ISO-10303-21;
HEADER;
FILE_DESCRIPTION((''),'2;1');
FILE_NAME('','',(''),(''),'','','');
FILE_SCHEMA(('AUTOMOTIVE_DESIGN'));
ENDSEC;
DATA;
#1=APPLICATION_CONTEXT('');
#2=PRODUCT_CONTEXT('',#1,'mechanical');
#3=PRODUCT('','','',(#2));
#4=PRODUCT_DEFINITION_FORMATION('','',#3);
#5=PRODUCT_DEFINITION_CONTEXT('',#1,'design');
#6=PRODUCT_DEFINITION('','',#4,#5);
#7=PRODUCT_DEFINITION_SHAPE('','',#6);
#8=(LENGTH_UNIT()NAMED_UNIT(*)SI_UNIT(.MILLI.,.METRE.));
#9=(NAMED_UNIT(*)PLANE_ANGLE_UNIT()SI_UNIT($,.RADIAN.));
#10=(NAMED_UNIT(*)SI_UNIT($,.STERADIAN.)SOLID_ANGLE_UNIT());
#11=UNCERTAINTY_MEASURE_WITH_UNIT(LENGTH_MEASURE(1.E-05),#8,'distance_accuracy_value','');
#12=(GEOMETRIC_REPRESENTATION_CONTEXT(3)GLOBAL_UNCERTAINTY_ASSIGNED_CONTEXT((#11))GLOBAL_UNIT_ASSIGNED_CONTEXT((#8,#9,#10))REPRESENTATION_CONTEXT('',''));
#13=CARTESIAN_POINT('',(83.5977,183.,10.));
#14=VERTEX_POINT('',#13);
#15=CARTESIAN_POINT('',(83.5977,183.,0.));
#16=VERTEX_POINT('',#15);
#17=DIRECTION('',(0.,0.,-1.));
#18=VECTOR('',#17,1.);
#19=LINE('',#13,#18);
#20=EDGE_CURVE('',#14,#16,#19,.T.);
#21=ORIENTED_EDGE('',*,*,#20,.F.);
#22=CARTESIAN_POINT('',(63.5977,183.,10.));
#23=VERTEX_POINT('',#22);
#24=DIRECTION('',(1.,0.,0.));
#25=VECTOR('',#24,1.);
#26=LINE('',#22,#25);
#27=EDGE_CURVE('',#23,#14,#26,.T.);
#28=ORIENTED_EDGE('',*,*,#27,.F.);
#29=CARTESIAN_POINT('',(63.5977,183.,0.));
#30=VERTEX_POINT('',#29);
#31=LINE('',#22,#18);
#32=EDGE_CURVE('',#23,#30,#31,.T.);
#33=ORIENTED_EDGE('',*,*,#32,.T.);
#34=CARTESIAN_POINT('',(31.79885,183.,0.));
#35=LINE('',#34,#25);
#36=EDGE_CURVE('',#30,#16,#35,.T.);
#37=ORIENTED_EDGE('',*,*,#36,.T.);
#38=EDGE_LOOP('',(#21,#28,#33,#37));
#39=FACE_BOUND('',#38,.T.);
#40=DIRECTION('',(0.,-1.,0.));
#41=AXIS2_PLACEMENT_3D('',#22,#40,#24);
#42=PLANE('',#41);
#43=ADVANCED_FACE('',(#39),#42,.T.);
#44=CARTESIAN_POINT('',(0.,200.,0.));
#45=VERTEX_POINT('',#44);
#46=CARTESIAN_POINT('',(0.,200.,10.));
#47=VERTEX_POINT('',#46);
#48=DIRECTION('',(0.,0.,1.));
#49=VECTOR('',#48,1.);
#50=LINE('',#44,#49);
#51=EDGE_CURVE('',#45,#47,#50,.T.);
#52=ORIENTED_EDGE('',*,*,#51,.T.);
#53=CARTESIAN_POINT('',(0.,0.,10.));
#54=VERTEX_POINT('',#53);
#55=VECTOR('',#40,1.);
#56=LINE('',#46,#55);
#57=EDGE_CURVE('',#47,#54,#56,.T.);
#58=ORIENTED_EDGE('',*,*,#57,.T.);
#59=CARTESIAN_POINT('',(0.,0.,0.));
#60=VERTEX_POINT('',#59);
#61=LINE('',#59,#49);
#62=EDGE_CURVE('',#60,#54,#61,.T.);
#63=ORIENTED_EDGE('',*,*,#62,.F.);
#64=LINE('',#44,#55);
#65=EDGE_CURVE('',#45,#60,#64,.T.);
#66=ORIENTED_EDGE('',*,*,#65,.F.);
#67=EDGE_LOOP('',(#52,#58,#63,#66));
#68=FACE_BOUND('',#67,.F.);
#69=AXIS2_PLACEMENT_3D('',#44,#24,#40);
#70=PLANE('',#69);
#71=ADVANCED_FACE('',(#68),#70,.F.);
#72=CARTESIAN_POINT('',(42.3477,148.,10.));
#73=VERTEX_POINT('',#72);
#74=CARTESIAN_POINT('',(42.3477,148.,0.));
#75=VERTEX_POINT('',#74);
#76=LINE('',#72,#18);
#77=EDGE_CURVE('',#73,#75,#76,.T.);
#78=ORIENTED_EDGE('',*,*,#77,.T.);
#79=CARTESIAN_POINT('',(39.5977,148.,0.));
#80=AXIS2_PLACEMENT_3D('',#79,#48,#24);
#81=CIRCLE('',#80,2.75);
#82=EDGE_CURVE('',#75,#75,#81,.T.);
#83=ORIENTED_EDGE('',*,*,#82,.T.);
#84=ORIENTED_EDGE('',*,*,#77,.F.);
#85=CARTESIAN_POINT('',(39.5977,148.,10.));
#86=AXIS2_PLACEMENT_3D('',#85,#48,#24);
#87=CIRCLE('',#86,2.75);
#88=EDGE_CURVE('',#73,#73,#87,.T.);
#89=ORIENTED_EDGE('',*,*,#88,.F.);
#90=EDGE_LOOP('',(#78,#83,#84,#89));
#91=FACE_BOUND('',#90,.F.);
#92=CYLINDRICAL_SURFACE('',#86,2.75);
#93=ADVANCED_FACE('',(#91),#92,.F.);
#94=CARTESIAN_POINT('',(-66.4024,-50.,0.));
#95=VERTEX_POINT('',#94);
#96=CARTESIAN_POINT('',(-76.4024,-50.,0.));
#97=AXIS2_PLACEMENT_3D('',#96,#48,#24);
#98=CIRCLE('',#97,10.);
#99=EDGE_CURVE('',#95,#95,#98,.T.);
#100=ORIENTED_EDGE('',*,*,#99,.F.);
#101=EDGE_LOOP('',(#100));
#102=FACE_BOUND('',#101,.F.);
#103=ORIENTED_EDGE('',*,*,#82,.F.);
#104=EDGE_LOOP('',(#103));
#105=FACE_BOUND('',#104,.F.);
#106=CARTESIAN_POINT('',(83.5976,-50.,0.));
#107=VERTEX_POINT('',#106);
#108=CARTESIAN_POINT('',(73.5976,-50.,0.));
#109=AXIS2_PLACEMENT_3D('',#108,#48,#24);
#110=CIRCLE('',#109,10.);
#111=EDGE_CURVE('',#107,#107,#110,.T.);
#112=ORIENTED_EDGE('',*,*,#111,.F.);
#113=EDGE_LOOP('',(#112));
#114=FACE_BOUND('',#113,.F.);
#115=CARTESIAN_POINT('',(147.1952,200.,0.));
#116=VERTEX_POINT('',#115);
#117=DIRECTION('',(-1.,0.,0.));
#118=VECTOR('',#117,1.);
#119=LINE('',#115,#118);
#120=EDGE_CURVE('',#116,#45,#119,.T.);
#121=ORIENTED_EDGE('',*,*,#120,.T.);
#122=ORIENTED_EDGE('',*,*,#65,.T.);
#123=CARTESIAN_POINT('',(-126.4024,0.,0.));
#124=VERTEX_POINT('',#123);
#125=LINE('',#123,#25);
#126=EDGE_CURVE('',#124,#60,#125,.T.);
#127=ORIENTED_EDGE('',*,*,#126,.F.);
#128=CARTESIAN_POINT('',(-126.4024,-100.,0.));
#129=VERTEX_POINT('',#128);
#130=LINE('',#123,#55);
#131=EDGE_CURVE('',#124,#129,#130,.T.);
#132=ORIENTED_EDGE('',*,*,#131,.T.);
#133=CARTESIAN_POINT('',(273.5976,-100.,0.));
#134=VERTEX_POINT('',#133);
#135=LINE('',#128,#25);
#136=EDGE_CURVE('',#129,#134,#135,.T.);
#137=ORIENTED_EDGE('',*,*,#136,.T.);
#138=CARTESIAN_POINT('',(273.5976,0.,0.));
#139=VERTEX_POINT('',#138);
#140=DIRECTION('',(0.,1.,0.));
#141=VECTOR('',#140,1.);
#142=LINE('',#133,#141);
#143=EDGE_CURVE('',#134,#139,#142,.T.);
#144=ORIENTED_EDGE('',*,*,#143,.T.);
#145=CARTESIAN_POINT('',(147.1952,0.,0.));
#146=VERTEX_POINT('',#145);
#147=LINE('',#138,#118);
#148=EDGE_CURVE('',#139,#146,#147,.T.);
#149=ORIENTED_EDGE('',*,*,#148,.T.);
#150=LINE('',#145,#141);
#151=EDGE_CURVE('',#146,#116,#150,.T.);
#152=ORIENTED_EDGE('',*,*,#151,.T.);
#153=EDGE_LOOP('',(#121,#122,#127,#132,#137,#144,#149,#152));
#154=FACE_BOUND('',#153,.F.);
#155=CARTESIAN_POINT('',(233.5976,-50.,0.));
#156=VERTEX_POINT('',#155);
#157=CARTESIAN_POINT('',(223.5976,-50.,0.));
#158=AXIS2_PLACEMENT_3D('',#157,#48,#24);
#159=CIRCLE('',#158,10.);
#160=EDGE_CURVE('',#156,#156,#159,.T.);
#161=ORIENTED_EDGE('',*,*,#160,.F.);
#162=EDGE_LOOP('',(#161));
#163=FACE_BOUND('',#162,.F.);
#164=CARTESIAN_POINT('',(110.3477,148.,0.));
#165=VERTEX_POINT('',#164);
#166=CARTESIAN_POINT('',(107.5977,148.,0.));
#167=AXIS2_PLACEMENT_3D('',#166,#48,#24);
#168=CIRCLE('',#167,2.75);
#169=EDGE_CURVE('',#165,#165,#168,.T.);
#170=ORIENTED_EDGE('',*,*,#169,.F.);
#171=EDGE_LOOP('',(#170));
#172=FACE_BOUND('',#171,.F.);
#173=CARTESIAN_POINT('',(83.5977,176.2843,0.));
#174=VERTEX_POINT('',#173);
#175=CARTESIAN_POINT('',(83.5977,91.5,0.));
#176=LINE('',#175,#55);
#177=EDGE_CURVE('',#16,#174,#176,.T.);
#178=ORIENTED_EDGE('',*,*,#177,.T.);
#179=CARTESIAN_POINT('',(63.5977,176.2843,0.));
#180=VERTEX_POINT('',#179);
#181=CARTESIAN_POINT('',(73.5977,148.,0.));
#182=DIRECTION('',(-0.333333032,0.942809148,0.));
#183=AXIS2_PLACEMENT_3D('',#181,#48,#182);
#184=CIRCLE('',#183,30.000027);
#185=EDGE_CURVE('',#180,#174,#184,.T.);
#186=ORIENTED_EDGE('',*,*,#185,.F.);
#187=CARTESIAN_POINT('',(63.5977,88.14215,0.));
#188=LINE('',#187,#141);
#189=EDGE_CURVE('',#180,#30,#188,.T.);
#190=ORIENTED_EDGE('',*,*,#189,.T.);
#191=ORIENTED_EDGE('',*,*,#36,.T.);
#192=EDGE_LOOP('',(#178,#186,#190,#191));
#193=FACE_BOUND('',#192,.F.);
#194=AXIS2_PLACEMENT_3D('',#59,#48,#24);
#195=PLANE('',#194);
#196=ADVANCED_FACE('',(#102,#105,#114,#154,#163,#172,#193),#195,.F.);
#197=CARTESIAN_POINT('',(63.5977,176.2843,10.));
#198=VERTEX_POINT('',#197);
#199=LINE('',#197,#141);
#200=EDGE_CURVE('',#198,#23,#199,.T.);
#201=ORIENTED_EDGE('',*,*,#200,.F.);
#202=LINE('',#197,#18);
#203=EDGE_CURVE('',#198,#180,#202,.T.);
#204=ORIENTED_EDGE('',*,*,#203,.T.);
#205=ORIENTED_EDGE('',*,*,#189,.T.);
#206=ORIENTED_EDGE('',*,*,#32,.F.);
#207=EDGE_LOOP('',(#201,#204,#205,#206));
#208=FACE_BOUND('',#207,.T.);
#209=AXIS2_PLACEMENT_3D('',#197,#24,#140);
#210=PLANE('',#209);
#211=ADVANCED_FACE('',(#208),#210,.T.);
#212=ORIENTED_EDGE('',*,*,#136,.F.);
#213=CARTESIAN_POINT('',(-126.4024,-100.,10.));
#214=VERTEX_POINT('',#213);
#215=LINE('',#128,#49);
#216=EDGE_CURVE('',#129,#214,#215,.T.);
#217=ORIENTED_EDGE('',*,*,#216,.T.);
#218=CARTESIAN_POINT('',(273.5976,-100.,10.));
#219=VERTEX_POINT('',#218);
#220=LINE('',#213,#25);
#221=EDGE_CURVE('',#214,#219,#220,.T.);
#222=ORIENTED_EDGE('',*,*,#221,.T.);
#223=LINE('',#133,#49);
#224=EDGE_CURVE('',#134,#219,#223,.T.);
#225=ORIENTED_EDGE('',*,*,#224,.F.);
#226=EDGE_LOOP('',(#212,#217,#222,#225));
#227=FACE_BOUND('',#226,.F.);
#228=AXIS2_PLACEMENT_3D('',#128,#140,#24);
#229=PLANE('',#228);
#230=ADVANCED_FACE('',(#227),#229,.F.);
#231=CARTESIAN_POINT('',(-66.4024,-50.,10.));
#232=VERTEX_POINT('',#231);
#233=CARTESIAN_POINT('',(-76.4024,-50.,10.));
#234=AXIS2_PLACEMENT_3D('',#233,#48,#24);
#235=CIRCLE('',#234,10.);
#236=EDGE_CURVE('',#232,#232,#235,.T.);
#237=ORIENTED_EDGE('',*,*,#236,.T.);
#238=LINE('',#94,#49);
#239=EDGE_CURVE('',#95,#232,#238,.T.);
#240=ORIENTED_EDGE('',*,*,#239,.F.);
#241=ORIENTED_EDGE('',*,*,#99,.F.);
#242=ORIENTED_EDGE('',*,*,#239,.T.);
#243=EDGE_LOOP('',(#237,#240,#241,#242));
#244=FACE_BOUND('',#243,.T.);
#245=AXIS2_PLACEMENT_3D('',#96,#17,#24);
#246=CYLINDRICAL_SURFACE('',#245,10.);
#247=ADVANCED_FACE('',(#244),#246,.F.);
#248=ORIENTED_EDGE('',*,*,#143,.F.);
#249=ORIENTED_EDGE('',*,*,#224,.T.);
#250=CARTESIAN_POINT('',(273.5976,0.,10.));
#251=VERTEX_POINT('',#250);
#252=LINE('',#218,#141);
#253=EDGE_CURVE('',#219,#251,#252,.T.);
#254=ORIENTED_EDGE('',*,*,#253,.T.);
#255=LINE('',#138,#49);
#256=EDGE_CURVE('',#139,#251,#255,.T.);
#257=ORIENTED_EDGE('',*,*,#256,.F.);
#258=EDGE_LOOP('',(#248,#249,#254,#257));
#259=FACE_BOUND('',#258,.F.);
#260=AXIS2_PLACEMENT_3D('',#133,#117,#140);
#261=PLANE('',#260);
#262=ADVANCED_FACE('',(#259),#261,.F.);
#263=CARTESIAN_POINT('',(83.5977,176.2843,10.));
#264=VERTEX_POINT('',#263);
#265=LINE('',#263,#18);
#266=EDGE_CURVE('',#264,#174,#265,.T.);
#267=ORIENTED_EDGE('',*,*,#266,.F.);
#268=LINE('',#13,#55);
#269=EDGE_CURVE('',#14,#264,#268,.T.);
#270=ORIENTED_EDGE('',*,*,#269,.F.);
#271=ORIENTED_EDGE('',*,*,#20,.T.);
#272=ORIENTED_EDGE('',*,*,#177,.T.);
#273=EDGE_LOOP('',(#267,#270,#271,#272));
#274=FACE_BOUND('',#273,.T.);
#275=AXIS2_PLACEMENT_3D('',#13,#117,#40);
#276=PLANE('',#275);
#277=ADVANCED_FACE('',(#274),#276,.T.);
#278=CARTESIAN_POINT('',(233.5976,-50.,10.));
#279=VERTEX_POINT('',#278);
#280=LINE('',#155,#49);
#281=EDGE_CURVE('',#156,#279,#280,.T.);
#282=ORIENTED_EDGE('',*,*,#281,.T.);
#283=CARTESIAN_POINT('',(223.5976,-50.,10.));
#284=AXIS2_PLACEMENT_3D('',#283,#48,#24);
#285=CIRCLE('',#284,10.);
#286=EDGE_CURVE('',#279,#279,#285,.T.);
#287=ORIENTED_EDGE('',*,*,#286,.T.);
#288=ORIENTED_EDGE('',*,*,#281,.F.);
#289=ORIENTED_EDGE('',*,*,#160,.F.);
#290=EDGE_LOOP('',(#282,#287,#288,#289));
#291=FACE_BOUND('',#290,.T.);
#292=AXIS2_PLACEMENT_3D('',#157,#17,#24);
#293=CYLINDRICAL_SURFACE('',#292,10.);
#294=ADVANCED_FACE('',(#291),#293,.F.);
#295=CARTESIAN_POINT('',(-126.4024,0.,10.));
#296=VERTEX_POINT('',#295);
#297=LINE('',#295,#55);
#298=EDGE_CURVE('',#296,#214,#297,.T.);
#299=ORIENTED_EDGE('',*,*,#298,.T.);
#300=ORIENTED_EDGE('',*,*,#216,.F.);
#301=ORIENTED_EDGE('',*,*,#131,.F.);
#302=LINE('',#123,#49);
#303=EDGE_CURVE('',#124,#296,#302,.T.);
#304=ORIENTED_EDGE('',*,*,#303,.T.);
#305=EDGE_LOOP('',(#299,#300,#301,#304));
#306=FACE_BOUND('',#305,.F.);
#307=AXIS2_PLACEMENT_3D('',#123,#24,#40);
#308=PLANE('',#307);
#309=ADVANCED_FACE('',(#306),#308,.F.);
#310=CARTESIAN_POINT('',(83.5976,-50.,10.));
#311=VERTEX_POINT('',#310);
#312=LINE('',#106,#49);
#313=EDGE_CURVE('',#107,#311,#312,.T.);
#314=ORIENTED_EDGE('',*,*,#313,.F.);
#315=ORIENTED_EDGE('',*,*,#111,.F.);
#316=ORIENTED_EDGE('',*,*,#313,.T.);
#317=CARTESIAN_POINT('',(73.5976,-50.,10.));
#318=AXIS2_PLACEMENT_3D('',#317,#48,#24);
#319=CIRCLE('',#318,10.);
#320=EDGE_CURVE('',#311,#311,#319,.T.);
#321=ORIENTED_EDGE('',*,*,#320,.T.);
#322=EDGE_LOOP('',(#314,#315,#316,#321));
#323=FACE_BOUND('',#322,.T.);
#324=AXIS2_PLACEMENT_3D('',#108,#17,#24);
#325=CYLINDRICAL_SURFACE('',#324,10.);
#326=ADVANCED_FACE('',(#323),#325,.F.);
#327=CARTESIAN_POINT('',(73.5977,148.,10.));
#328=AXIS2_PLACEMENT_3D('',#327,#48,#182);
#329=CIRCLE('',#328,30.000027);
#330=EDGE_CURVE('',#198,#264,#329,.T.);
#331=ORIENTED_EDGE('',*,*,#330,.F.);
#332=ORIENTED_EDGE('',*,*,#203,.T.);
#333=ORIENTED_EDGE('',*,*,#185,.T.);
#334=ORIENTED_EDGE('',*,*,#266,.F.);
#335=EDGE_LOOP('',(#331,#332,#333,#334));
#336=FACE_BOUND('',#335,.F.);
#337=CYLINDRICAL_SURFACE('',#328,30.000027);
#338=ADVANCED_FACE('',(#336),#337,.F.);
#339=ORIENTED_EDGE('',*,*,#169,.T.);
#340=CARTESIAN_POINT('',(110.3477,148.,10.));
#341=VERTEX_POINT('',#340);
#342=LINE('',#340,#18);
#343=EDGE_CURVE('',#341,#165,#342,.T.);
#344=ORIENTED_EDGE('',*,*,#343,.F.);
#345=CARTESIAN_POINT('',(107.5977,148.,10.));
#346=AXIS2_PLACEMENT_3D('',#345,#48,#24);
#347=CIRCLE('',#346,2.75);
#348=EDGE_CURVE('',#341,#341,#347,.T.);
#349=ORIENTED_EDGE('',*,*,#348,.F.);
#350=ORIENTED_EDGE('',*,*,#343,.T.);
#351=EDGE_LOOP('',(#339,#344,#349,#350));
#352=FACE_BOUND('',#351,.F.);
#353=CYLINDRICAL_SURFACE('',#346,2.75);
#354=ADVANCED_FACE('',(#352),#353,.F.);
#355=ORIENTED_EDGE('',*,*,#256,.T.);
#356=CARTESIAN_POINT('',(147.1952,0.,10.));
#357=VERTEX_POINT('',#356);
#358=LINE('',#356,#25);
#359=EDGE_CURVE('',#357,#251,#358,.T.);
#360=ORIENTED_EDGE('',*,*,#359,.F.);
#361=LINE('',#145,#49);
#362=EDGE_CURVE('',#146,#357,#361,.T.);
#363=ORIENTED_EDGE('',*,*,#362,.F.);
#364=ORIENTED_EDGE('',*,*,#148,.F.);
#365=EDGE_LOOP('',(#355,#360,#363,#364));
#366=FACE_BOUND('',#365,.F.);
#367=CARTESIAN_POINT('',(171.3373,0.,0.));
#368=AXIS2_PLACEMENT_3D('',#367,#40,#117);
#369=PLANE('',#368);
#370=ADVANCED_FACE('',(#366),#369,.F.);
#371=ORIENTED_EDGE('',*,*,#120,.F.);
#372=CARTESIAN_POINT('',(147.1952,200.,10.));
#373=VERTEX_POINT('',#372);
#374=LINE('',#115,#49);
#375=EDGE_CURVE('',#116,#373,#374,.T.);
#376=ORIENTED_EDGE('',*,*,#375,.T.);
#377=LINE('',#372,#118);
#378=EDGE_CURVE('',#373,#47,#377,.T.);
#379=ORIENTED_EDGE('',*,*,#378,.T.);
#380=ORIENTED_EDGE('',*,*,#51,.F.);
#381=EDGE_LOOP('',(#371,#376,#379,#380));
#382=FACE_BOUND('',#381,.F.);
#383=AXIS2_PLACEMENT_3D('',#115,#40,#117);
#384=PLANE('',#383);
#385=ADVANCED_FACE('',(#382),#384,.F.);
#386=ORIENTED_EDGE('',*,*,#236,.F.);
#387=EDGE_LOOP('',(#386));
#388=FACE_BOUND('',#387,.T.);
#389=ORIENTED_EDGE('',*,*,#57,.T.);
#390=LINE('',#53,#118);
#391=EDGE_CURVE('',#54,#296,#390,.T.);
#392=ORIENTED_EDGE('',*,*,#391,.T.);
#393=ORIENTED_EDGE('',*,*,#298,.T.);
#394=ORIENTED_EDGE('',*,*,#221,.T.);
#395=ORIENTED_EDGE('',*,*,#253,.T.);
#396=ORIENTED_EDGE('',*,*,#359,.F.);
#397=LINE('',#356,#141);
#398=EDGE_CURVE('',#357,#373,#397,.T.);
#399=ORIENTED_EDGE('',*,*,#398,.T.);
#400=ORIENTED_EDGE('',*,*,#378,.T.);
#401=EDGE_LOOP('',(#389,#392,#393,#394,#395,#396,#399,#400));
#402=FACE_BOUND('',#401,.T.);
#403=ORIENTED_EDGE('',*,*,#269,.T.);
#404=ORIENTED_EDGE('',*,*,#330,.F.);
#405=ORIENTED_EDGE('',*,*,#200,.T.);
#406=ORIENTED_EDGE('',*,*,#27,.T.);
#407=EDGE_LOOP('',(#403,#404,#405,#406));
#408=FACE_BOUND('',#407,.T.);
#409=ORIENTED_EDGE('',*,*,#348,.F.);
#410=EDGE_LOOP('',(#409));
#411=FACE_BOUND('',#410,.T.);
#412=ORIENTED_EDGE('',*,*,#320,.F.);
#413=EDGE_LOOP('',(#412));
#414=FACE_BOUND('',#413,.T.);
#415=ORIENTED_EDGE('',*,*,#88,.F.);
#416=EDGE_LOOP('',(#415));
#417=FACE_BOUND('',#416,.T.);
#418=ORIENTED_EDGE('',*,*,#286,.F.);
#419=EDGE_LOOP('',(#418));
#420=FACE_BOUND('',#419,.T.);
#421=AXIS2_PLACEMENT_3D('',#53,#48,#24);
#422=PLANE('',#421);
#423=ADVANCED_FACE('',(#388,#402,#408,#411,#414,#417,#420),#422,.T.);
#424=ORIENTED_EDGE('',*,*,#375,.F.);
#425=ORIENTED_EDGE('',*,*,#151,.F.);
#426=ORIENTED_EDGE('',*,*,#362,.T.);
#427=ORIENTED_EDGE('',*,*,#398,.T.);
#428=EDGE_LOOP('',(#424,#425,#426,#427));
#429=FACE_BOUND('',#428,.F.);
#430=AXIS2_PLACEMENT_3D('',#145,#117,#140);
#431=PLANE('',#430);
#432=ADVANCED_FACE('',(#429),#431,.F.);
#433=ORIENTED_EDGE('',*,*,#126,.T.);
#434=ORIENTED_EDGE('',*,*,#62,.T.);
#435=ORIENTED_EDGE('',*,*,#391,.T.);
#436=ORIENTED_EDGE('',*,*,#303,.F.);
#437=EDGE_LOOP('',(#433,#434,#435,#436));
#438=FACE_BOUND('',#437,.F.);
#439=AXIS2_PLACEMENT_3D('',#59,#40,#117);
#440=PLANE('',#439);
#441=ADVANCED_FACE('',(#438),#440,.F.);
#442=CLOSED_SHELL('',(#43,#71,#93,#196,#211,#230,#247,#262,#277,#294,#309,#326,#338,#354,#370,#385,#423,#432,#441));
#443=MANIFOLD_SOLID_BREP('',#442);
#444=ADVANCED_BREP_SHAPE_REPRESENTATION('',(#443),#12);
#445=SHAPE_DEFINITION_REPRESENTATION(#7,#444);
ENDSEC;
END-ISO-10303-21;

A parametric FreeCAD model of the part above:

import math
import FreeCAD as App
import Part
import Sketcher
from FreeCAD import Vector
Q = App.Units.Quantity

doc = App.newDocument("Part")
body = doc.addObject("PartDesign::Body", "Body")

# Sketch on XY plane
sketch1 = doc.addObject("Sketcher::SketchObject", "Sketch")
body.addObject(sketch1)
sketch1.AttachmentSupport = (doc.XY_Plane, [""])
sketch1.MapMode = "FlatFace"
sketch1.addGeometry(Part.LineSegment(Vector(273.5976, 0, 0), Vector(147.1952, 0, 0)), False)
sketch1.addGeometry(Part.LineSegment(Vector(147.1952, 0, 0), Vector(147.1952, 200, 0)), False)
sketch1.addGeometry(Part.LineSegment(Vector(147.1952, 200, 0), Vector(0, 200, 0)), False)
sketch1.addGeometry(Part.LineSegment(Vector(0, 200, 0), Vector(0, 0, 0)), False)
sketch1.addGeometry(Part.LineSegment(Vector(0, 0, 0), Vector(-126.4024, 0, 0)), False)
sketch1.addGeometry(Part.LineSegment(Vector(-126.4024, 0, 0), Vector(-126.4024, -100, 0)), False)
sketch1.addGeometry(Part.LineSegment(Vector(-126.4024, -100, 0), Vector(273.5976, -100, 0)), False)
sketch1.addGeometry(Part.LineSegment(Vector(273.5976, -100, 0), Vector(273.5976, 0, 0)), False)
sketch1.addGeometry(Part.Circle(Vector(-76.4024, -50, 0), Vector(0, 0, 1), 10), False)
sketch1.addGeometry(Part.Circle(Vector(73.5976, -50, 0), Vector(0, 0, 1), 10), False)
sketch1.addGeometry(Part.Circle(Vector(223.5976, -50, 0), Vector(0, 0, 1), 10), False)
sketch1.addConstraint(Sketcher.Constraint("Coincident", 0, 2, 1, 1))
sketch1.addConstraint(Sketcher.Constraint("Coincident", 1, 2, 2, 1))
sketch1.addConstraint(Sketcher.Constraint("Coincident", 2, 2, 3, 1))
sketch1.addConstraint(Sketcher.Constraint("Coincident", 3, 2, 4, 1))
sketch1.addConstraint(Sketcher.Constraint("Coincident", 4, 2, 5, 1))
sketch1.addConstraint(Sketcher.Constraint("Coincident", 5, 2, 6, 1))
sketch1.addConstraint(Sketcher.Constraint("Coincident", 6, 2, 7, 1))
sketch1.addConstraint(Sketcher.Constraint("Coincident", 7, 2, 0, 1))
sketch1.addConstraint(Sketcher.Constraint("Horizontal", 0))
sketch1.addConstraint(Sketcher.Constraint("Vertical", 1))
sketch1.addConstraint(Sketcher.Constraint("Horizontal", 2))
sketch1.addConstraint(Sketcher.Constraint("Vertical", 3))
sketch1.addConstraint(Sketcher.Constraint("Horizontal", 4))
sketch1.addConstraint(Sketcher.Constraint("Vertical", 5))
sketch1.addConstraint(Sketcher.Constraint("Horizontal", 6))
sketch1.addConstraint(Sketcher.Constraint("Vertical", 7))
sketch1.addConstraint(Sketcher.Constraint("Coincident", 3, 2, -1, 1))
sketch1.addConstraint(Sketcher.Constraint("Equal", 8, 9))
sketch1.addConstraint(Sketcher.Constraint("Equal", 9, 10))
sketch1.addConstraint(Sketcher.Constraint("PointOnObject", 0, 2, -1))
sketch1.addConstraint(Sketcher.Constraint("Horizontal", 8, 3, 9, 3))
sketch1.addConstraint(Sketcher.Constraint("Horizontal", 9, 3, 10, 3))
sketch1.addConstraint(Sketcher.Constraint("Equal", 0, 4))
sketch1.addConstraint(Sketcher.Constraint("Diameter", 8, Q("20 mm")))
sketch1.addConstraint(Sketcher.Constraint("DistanceX", 6, 1, 6, 2, Q("400 mm")))
sketch1.addConstraint(Sketcher.Constraint("DistanceY", 1, 1, 1, 2, Q("200 mm")))
sketch1.addConstraint(Sketcher.Constraint("DistanceY", 5, 2, 5, 1, Q("100 mm")))
sketch1.addConstraint(Sketcher.Constraint("DistanceY", 8, 3, -1, 1, Q("50 mm")))
sketch1.addConstraint(Sketcher.Constraint("DistanceX", 4, 2, 8, 3, Q("50 mm")))
sketch1.addConstraint(Sketcher.Constraint("DistanceX", 4, 2, 9, 3, Q("200 mm")))
sketch1.addConstraint(Sketcher.Constraint("DistanceX", 10, 3, 6, 2, Q("50 mm")))
sketch1.addConstraint(Sketcher.Constraint("DistanceX", 0, 2, 0, 1, Q("126.4024 mm")))
pad1 = doc.addObject("PartDesign::Pad", "Pad")
body.addObject(pad1)
pad1.Profile = sketch1
pad1.Length = 10

# Sketch on XY plane
sketch2 = doc.addObject("Sketcher::SketchObject", "Sketch001")
body.addObject(sketch2)
sketch2.AttachmentSupport = (doc.XY_Plane, [""])
sketch2.MapMode = "FlatFace"
sketch2.AttachmentOffset = App.Placement(Vector(0, 0, 10), App.Rotation())
sketch2.addGeometry(Part.LineSegment(Vector(63.5977, 183, 0), Vector(63.5977, 176.2843, 0)), False)
sketch2.addGeometry(Part.ArcOfCircle(Part.Circle(Vector(73.5977, 148, 0), Vector(0, 0, 1), 30.000027), math.radians(109.471202), math.radians(430.528798)), False)
sketch2.addGeometry(Part.LineSegment(Vector(83.5977, 176.2843, 0), Vector(83.5977, 183, 0)), False)
sketch2.addGeometry(Part.LineSegment(Vector(83.5977, 183, 0), Vector(63.5977, 183, 0)), False)
sketch2.addGeometry(Part.Circle(Vector(39.5977, 148, 0), Vector(0, 0, 1), 2.75), False)
sketch2.addGeometry(Part.Circle(Vector(107.5977, 148, 0), Vector(0, 0, 1), 2.75), False)
sketch2.addConstraint(Sketcher.Constraint("Coincident", 0, 2, 1, 1))
sketch2.addConstraint(Sketcher.Constraint("Coincident", 1, 2, 2, 1))
sketch2.addConstraint(Sketcher.Constraint("Coincident", 2, 2, 3, 1))
sketch2.addConstraint(Sketcher.Constraint("Coincident", 3, 2, 0, 1))
sketch2.addConstraint(Sketcher.Constraint("Vertical", 0))
sketch2.addConstraint(Sketcher.Constraint("Vertical", 2))
sketch2.addConstraint(Sketcher.Constraint("Horizontal", 3))
sketch2.addConstraint(Sketcher.Constraint("Equal", 4, 5))
sketch2.addConstraint(Sketcher.Constraint("Horizontal", 1, 3, 4, 3))
sketch2.addConstraint(Sketcher.Constraint("Horizontal", 4, 3, 5, 3))
sketch2.addConstraint(Sketcher.Constraint("Horizontal", 0, 2, 1, 2))
sketch2.addConstraint(Sketcher.Constraint("Radius", 1, Q("30 mm")))
sketch2.addConstraint(Sketcher.Constraint("Diameter", 4, Q("5.5 mm")))
sketch2.addConstraint(Sketcher.Constraint("DistanceX", 3, 2, 3, 1, Q("20 mm")))
sketch2.addConstraint(Sketcher.Constraint("DistanceX", 4, 3, 5, 3, Q("68 mm")))
sketch2.addConstraint(Sketcher.Constraint("DistanceY", 1, 3, 2, 2, Q("35 mm")))
sketch2.addConstraint(Sketcher.Constraint("DistanceY", -1, 1, 1, 3, Q("148 mm")))
sketch2.addConstraint(Sketcher.Constraint("DistanceX", 4, 3, 1, 3, Q("34 mm")))
sketch2.addConstraint(Sketcher.Constraint("DistanceX", -1, 1, 1, 3, Q("73.5977 mm")))
pocket1 = doc.addObject("PartDesign::Pocket", "Pocket")
body.addObject(pocket1)
pocket1.Profile = sketch2
pocket1.Type = "ThroughAll"

doc.recompute()
